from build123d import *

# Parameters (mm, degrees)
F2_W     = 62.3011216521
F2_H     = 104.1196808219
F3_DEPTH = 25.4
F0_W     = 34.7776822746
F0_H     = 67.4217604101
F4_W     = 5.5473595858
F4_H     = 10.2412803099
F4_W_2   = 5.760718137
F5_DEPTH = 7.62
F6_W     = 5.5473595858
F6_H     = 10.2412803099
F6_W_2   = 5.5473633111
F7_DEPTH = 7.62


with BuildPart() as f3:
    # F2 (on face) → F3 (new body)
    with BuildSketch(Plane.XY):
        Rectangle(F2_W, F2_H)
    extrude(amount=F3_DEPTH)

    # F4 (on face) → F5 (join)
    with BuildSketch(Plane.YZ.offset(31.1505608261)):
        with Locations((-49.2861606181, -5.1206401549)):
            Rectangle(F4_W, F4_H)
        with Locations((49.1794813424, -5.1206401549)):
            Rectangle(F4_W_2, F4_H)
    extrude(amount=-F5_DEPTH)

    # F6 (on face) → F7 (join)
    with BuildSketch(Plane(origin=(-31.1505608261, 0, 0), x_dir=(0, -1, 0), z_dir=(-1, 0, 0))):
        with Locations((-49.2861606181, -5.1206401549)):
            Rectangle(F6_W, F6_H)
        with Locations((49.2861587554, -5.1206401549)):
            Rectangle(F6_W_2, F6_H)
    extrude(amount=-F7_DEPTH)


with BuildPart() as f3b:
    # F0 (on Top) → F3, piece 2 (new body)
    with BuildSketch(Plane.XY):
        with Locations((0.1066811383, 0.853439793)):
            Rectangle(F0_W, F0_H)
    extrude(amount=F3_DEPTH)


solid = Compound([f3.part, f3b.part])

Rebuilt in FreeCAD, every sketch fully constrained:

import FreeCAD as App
import Part
import Sketcher
from FreeCAD import Vector
Q = App.Units.Quantity

doc = App.newDocument("Part")
body = doc.addObject("PartDesign::Body", "Body")

# Sketch on XY plane
sketch1 = doc.addObject("Sketcher::SketchObject", "Sketch")
body.addObject(sketch1)
sketch1.AttachmentSupport = (doc.XY_Plane, [""])
sketch1.MapMode = "FlatFace"
sketch1.addGeometry(Part.LineSegment(Vector(-31, 52, 0), Vector(-31, -52, 0)), False)
sketch1.addGeometry(Part.LineSegment(Vector(-31, -52, 0), Vector(31, -52, 0)), False)
sketch1.addGeometry(Part.LineSegment(Vector(31, -52, 0), Vector(31, 52, 0)), False)
sketch1.addGeometry(Part.LineSegment(Vector(31, 52, 0), Vector(-31, 52, 0)), False)
sketch1.addConstraint(Sketcher.Constraint("Coincident", 0, 2, 1, 1))
sketch1.addConstraint(Sketcher.Constraint("Coincident", 1, 2, 2, 1))
sketch1.addConstraint(Sketcher.Constraint("Coincident", 2, 2, 3, 1))
sketch1.addConstraint(Sketcher.Constraint("Coincident", 3, 2, 0, 1))
sketch1.addConstraint(Sketcher.Constraint("Vertical", 0))
sketch1.addConstraint(Sketcher.Constraint("Horizontal", 1))
sketch1.addConstraint(Sketcher.Constraint("Vertical", 2))
sketch1.addConstraint(Sketcher.Constraint("Horizontal", 3))
sketch1.addConstraint(Sketcher.Constraint("Symmetric", 0, 2, 2, 2, -1, 1))
sketch1.addConstraint(Sketcher.Constraint("DistanceX", 1, 1, 1, 2, Q("2.4528001 in")))
sketch1.addConstraint(Sketcher.Constraint("DistanceY", 0, 2, 0, 1, Q("4.0992 in")))
pad1 = doc.addObject("PartDesign::Pad", "Pad")
body.addObject(pad1)
pad1.Profile = sketch1
pad1.Length = Q("1 in")

# Sketch on YZ plane
sketch2 = doc.addObject("Sketcher::SketchObject", "Sketch001")
body.addObject(sketch2)
sketch2.AttachmentSupport = (doc.YZ_Plane, [""])
sketch2.MapMode = "FlatFace"
sketch2.AttachmentOffset = App.Placement(Vector(0, 0, 1.2264 * 25.4), App.Rotation())
sketch2.addGeometry(Part.LineSegment(Vector(-52, 0, 0), Vector(-52, -10, 0)), False)
sketch2.addGeometry(Part.LineSegment(Vector(-52, -10, 0), Vector(-47, -10, 0)), False)
sketch2.addGeometry(Part.LineSegment(Vector(-47, -10, 0), Vector(-47, 0, 0)), False)
sketch2.addGeometry(Part.LineSegment(Vector(-47, 0, 0), Vector(-52, 0, 0)), False)
sketch2.addGeometry(Part.LineSegment(Vector(46, 0, 0), Vector(46, -10, 0)), False)
sketch2.addGeometry(Part.LineSegment(Vector(46, -10, 0), Vector(52, -10, 0)), False)
sketch2.addGeometry(Part.LineSegment(Vector(52, -10, 0), Vector(52, 0, 0)), False)
sketch2.addGeometry(Part.LineSegment(Vector(52, 0, 0), Vector(46, 0, 0)), False)
sketch2.addConstraint(Sketcher.Constraint("Coincident", 0, 2, 1, 1))
sketch2.addConstraint(Sketcher.Constraint("Coincident", 1, 2, 2, 1))
sketch2.addConstraint(Sketcher.Constraint("Coincident", 2, 2, 3, 1))
sketch2.addConstraint(Sketcher.Constraint("Coincident", 3, 2, 0, 1))
sketch2.addConstraint(Sketcher.Constraint("Coincident", 4, 2, 5, 1))
sketch2.addConstraint(Sketcher.Constraint("Coincident", 5, 2, 6, 1))
sketch2.addConstraint(Sketcher.Constraint("Coincident", 6, 2, 7, 1))
sketch2.addConstraint(Sketcher.Constraint("Coincident", 7, 2, 4, 1))
sketch2.addConstraint(Sketcher.Constraint("Vertical", 0))
sketch2.addConstraint(Sketcher.Constraint("Horizontal", 1))
sketch2.addConstraint(Sketcher.Constraint("Vertical", 2))
sketch2.addConstraint(Sketcher.Constraint("Horizontal", 3))
sketch2.addConstraint(Sketcher.Constraint("Vertical", 4))
sketch2.addConstraint(Sketcher.Constraint("Horizontal", 5))
sketch2.addConstraint(Sketcher.Constraint("Vertical", 6))
sketch2.addConstraint(Sketcher.Constraint("Horizontal", 7))
sketch2.addConstraint(Sketcher.Constraint("Symmetric", 3, 2, 6, 2, -1, 1))
sketch2.addConstraint(Sketcher.Constraint("PointOnObject", 2, 2, -1))
sketch2.addConstraint(Sketcher.Constraint("Horizontal", 1, 2, 4, 2))
sketch2.addConstraint(Sketcher.Constraint("DistanceX", 1, 1, 1, 2, Q("0.2184 in")))
sketch2.addConstraint(Sketcher.Constraint("DistanceX", 5, 1, 5, 2, Q("0.2267999 in")))
sketch2.addConstraint(Sketcher.Constraint("DistanceY", 0, 2, 0, 1, Q("0.4032 in")))
sketch2.addConstraint(Sketcher.Constraint("DistanceX", 1, 2, 4, 2, Q("3.6540001 in")))
pad2 = doc.addObject("PartDesign::Pad", "Pad001")
body.addObject(pad2)
pad2.Profile = sketch2
pad2.Length = Q("0.3 in")
pad2.Reversed = True

# Sketch on YZ plane
sketch3 = doc.addObject("Sketcher::SketchObject", "Sketch002")
body.addObject(sketch3)
sketch3.AttachmentSupport = (doc.YZ_Plane, [""])
sketch3.MapMode = "FlatFace"
sketch3.AttachmentOffset = App.Placement(Vector(0, 0, -1.2264 * 25.4), App.Rotation())
sketch3.addGeometry(Part.LineSegment(Vector(52, 0, 0), Vector(52, -10, 0)), False)
sketch3.addGeometry(Part.LineSegment(Vector(52, -10, 0), Vector(47, -10, 0)), False)
sketch3.addGeometry(Part.LineSegment(Vector(47, -10, 0), Vector(47, 0, 0)), False)
sketch3.addGeometry(Part.LineSegment(Vector(47, 0, 0), Vector(52, 0, 0)), False)
sketch3.addGeometry(Part.LineSegment(Vector(-47, 0, 0), Vector(-47, -10, 0)), False)
sketch3.addGeometry(Part.LineSegment(Vector(-47, -10, 0), Vector(-52, -10, 0)), False)
sketch3.addGeometry(Part.LineSegment(Vector(-52, -10, 0), Vector(-52, 0, 0)), False)
sketch3.addGeometry(Part.LineSegment(Vector(-52, 0, 0), Vector(-47, 0, 0)), False)
sketch3.addConstraint(Sketcher.Constraint("Coincident", 0, 2, 1, 1))
sketch3.addConstraint(Sketcher.Constraint("Coincident", 1, 2, 2, 1))
sketch3.addConstraint(Sketcher.Constraint("Coincident", 2, 2, 3, 1))
sketch3.addConstraint(Sketcher.Constraint("Coincident", 3, 2, 0, 1))
sketch3.addConstraint(Sketcher.Constraint("Coincident", 4, 2, 5, 1))
sketch3.addConstraint(Sketcher.Constraint("Coincident", 5, 2, 6, 1))
sketch3.addConstraint(Sketcher.Constraint("Coincident", 6, 2, 7, 1))
sketch3.addConstraint(Sketcher.Constraint("Coincident", 7, 2, 4, 1))
sketch3.addConstraint(Sketcher.Constraint("Vertical", 0))
sketch3.addConstraint(Sketcher.Constraint("Horizontal", 1))
sketch3.addConstraint(Sketcher.Constraint("Vertical", 2))
sketch3.addConstraint(Sketcher.Constraint("Horizontal", 3))
sketch3.addConstraint(Sketcher.Constraint("Vertical", 4))
sketch3.addConstraint(Sketcher.Constraint("Horizontal", 5))
sketch3.addConstraint(Sketcher.Constraint("Vertical", 6))
sketch3.addConstraint(Sketcher.Constraint("Horizontal", 7))
sketch3.addConstraint(Sketcher.Constraint("Symmetric", 3, 2, 6, 2, -1, 1))
sketch3.addConstraint(Sketcher.Constraint("Symmetric", 1, 2, 4, 2, -2))
sketch3.addConstraint(Sketcher.Constraint("PointOnObject", 2, 2, -1))
sketch3.addConstraint(Sketcher.Constraint("DistanceX", 1, 2, 1, 1, Q("0.2184 in")))
sketch3.addConstraint(Sketcher.Constraint("DistanceY", 0, 2, 0, 1, Q("0.4032 in")))
sketch3.addConstraint(Sketcher.Constraint("DistanceX", -1, 1, 0, 2, Q("2.0496 in")))
pad3 = doc.addObject("PartDesign::Pad", "Pad002")
body.addObject(pad3)
pad3.Profile = sketch3
pad3.Length = Q("0.3 in")
body2 = doc.addObject("PartDesign::Body", "Body001")

# Sketch on XY plane
sketch4 = doc.addObject("Sketcher::SketchObject", "Sketch003")
body2.addObject(sketch4)
sketch4.AttachmentSupport = (doc.getObject("XY_Plane001"), [""])
sketch4.MapMode = "FlatFace"
sketch4.addGeometry(Part.LineSegment(Vector(-17, 35, 0), Vector(-17, -33, 0)), False)
sketch4.addGeometry(Part.LineSegment(Vector(-17, -33, 0), Vector(17, -33, 0)), False)
sketch4.addGeometry(Part.LineSegment(Vector(17, -33, 0), Vector(17, 35, 0)), False)
sketch4.addGeometry(Part.LineSegment(Vector(17, 35, 0), Vector(-17, 35, 0)), False)
sketch4.addConstraint(Sketcher.Constraint("Coincident", 0, 2, 1, 1))
sketch4.addConstraint(Sketcher.Constraint("Coincident", 1, 2, 2, 1))
sketch4.addConstraint(Sketcher.Constraint("Coincident", 2, 2, 3, 1))
sketch4.addConstraint(Sketcher.Constraint("Coincident", 3, 2, 0, 1))
sketch4.addConstraint(Sketcher.Constraint("Vertical", 0))
sketch4.addConstraint(Sketcher.Constraint("Horizontal", 1))
sketch4.addConstraint(Sketcher.Constraint("Vertical", 2))
sketch4.addConstraint(Sketcher.Constraint("Horizontal", 3))
sketch4.addConstraint(Sketcher.Constraint("DistanceX", 1, 1, 1, 2, Q("1.3692001 in")))
sketch4.addConstraint(Sketcher.Constraint("DistanceY", 0, 2, 0, 1, Q("2.6544 in")))
sketch4.addConstraint(Sketcher.Constraint("DistanceX", 0, 2, -1, 1, Q("0.6804 in")))
sketch4.addConstraint(Sketcher.Constraint("DistanceY", 0, 2, -1, 1, Q("1.2936 in")))
pad4 = doc.addObject("PartDesign::Pad", "Pad003")
body2.addObject(pad4)
pad4.Profile = sketch4
pad4.Length = Q("1 in")

doc.recompute()
